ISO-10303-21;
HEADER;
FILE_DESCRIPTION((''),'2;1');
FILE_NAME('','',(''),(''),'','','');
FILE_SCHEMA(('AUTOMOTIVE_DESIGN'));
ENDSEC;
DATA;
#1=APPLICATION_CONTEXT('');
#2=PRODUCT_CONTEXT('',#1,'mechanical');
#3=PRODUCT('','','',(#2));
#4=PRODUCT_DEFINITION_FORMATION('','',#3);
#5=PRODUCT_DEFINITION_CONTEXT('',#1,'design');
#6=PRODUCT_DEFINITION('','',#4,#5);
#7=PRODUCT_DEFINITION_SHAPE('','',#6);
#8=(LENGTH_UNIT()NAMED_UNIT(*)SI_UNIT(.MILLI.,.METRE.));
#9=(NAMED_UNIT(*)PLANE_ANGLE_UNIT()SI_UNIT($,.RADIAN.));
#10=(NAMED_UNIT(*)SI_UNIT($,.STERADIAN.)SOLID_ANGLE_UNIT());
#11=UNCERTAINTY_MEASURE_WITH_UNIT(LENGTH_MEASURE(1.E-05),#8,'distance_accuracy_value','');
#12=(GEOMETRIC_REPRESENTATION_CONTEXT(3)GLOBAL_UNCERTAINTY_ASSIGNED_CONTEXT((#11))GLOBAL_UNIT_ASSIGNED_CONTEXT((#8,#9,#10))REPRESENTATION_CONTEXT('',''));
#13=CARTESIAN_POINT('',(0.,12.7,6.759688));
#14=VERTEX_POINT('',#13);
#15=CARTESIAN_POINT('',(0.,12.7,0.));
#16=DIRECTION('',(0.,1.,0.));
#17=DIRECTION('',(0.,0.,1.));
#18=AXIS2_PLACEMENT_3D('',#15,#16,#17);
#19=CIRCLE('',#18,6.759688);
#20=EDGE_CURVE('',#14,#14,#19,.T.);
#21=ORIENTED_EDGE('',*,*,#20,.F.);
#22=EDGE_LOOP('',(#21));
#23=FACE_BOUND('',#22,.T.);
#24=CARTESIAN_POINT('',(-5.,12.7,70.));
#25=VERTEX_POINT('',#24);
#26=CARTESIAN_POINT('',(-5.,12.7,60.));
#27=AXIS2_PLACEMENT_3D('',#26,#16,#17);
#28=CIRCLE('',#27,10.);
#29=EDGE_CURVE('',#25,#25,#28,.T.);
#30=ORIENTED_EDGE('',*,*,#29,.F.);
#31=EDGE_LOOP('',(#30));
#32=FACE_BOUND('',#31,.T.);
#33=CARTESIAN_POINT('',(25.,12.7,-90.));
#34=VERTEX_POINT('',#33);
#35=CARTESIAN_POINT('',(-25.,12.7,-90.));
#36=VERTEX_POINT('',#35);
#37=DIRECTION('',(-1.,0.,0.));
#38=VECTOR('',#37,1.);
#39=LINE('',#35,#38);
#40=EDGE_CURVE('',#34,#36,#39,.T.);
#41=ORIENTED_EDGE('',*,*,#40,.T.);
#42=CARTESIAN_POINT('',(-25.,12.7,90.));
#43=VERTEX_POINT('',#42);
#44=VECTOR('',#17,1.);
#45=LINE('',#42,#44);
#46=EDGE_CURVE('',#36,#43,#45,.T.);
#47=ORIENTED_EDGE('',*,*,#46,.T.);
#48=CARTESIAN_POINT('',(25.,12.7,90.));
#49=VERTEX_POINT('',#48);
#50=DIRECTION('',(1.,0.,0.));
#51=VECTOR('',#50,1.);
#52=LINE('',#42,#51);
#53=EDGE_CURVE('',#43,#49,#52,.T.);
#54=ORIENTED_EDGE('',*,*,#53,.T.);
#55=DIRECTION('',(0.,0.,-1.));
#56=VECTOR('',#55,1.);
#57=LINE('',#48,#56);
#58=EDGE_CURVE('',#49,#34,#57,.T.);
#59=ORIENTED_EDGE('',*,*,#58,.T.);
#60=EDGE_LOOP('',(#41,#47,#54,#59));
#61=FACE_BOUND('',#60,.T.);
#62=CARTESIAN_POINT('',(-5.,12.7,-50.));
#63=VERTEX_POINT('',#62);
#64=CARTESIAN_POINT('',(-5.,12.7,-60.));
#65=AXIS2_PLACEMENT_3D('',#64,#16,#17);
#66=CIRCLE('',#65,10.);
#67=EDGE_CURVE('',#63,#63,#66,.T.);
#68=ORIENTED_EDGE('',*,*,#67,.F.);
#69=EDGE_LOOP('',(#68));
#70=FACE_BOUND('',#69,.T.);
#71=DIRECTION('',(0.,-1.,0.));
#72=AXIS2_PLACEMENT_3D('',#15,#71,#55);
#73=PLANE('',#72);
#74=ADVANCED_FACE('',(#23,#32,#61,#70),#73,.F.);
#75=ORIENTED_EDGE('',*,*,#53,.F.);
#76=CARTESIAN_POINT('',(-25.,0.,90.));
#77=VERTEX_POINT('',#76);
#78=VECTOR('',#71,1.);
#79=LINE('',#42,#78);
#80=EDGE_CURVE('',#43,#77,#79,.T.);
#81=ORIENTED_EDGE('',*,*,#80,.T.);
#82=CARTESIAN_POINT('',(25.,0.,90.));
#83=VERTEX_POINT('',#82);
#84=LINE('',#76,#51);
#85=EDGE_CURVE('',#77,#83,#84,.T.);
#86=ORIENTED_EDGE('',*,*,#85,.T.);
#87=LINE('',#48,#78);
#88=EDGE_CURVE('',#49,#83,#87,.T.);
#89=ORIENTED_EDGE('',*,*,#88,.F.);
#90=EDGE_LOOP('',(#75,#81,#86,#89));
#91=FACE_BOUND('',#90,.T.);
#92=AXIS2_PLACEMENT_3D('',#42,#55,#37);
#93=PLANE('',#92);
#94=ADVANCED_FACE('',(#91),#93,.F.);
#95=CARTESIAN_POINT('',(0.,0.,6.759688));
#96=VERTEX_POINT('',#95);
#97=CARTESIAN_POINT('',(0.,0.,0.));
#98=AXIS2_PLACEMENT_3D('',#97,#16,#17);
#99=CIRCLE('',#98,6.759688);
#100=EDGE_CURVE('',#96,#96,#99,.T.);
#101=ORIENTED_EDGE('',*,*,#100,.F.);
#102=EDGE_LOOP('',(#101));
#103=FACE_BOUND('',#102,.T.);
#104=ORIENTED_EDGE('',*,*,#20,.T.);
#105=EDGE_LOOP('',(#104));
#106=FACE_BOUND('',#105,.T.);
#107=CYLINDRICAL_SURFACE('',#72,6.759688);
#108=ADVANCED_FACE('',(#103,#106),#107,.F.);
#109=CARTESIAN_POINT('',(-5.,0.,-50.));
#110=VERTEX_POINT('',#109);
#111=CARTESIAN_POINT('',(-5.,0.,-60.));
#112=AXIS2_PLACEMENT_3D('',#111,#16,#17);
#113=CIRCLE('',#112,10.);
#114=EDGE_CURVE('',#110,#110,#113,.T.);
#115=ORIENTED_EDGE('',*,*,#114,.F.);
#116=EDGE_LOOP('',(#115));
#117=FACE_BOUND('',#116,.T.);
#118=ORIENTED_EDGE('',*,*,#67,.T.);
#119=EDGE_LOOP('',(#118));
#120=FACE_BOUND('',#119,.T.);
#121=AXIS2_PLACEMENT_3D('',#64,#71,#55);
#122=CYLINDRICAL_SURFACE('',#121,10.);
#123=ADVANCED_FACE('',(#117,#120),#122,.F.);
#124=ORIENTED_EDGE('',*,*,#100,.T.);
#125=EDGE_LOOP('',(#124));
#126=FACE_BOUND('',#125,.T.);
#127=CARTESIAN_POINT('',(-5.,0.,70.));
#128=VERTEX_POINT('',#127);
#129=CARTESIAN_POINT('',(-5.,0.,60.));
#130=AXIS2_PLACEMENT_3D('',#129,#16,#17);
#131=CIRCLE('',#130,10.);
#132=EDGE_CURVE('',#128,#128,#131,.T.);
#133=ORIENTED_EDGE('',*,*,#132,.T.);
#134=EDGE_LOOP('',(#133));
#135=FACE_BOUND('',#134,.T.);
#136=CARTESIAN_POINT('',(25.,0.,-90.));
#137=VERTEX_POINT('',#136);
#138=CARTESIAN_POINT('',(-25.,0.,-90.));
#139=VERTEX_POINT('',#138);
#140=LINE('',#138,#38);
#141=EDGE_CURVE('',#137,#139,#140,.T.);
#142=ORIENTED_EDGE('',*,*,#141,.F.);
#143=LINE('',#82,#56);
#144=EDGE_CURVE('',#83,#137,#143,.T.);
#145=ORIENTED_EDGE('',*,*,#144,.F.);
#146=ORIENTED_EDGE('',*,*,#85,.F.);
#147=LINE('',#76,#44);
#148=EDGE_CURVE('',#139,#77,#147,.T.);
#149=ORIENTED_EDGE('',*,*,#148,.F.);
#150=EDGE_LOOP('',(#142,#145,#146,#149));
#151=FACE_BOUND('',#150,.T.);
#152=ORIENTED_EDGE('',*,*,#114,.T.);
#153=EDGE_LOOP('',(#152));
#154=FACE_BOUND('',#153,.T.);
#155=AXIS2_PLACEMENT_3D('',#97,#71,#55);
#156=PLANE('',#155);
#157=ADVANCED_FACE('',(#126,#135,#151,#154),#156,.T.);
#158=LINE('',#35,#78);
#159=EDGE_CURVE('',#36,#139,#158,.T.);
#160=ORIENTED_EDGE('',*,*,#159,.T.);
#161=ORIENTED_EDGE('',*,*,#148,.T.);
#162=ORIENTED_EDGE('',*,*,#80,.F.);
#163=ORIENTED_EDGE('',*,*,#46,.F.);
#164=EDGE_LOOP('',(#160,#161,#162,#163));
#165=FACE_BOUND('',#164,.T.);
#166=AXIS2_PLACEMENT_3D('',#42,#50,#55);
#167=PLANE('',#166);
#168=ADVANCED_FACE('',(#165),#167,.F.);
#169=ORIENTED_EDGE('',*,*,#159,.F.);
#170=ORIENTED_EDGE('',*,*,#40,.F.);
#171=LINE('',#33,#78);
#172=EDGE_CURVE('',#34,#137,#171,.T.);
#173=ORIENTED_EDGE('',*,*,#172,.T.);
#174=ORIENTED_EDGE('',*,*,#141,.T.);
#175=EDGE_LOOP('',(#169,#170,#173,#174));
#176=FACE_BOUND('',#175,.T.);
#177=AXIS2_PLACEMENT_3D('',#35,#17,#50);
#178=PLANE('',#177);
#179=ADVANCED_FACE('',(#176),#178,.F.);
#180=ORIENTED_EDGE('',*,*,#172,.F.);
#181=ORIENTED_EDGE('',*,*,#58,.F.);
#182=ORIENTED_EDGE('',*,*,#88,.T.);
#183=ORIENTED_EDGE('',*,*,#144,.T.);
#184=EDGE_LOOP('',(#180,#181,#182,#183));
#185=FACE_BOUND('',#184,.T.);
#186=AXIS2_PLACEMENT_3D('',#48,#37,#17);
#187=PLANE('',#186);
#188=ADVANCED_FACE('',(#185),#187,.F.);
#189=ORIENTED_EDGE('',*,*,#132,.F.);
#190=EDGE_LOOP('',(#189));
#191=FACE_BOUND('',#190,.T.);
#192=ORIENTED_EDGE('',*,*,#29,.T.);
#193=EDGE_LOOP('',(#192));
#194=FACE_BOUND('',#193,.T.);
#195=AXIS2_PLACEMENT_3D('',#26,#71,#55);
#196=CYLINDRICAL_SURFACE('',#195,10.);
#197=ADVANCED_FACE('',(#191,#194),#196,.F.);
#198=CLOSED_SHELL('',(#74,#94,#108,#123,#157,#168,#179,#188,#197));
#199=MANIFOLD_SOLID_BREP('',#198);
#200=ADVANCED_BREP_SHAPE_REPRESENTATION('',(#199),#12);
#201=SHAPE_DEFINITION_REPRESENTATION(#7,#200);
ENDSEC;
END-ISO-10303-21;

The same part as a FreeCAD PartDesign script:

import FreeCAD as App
import Part
import Sketcher


def add_polygon(sketch, points):
    """Adds a closed chain of lines whose ends are joined by coincident constraints."""
    first, n = sketch.GeometryCount, len(points)
    for a, b in zip(points, points[1:] + points[:1]):
        sketch.addGeometry(Part.LineSegment(App.Vector(*a, 0), App.Vector(*b, 0)), False)
    for i in range(n):
        sketch.addConstraint(Sketcher.Constraint("Coincident", first + i, 2, first + (i + 1) % n, 1))

doc = App.newDocument("Part")
body = doc.addObject("PartDesign::Body", "Body")

# Sketch on XZ plane
sketch1 = body.newObject("Sketcher::SketchObject", "Sketch")
sketch1.AttachmentSupport = (doc.getObject("XZ_Plane"), [""])
sketch1.MapMode = "FlatFace"
add_polygon(sketch1, [(-25, -90), (-25, 90), (25, 90), (25, -90)])  # lines 0-3
sketch1.addGeometry(Part.Circle(App.Vector(-5, 60, 0), App.Vector(0, 0, 1), 10), False)  # 4
sketch1.addGeometry(Part.Circle(App.Vector(-5, -60, 0), App.Vector(0, 0, 1), 10), False)  # 5
sketch1.addGeometry(Part.Circle(App.Vector(0, 0, 0), App.Vector(0, 0, 1), 7), False)  # 6
sketch1.addConstraint(Sketcher.Constraint("Vertical", 0))
sketch1.addConstraint(Sketcher.Constraint("Horizontal", 1))
sketch1.addConstraint(Sketcher.Constraint("Vertical", 2))
sketch1.addConstraint(Sketcher.Constraint("Horizontal", 3))
sketch1.addConstraint(Sketcher.Constraint("Coincident", 6, 3, -1, 1))
sketch1.addConstraint(Sketcher.Constraint("Equal", 4, 5))
sketch1.addConstraint(Sketcher.Constraint("Symmetric", 0, 2, 2, 2, -1, 1))
sketch1.addConstraint(Sketcher.Constraint("Symmetric", 4, 3, 5, 3, -1))
sketch1.addConstraint(Sketcher.Constraint("Diameter", 4, 20.0))
sketch1.addConstraint(Sketcher.Constraint("DistanceX", 1, 1, 1, 2, 50.0))
sketch1.addConstraint(Sketcher.Constraint("DistanceY", 0, 1, 0, 2, 180.0))
sketch1.addConstraint(Sketcher.Constraint("DistanceX", 4, 3, -1, 1, 5.0))
sketch1.addConstraint(Sketcher.Constraint("DistanceY", -1, 1, 4, 3, 60.0))
sketch1.addConstraint(Sketcher.Constraint("Diameter", 6, 13.519375))
pad1 = body.newObject("PartDesign::Pad", "Pad")
pad1.Profile = sketch1
pad1.Length = 12.7
pad1.Reversed = True

doc.recompute()
